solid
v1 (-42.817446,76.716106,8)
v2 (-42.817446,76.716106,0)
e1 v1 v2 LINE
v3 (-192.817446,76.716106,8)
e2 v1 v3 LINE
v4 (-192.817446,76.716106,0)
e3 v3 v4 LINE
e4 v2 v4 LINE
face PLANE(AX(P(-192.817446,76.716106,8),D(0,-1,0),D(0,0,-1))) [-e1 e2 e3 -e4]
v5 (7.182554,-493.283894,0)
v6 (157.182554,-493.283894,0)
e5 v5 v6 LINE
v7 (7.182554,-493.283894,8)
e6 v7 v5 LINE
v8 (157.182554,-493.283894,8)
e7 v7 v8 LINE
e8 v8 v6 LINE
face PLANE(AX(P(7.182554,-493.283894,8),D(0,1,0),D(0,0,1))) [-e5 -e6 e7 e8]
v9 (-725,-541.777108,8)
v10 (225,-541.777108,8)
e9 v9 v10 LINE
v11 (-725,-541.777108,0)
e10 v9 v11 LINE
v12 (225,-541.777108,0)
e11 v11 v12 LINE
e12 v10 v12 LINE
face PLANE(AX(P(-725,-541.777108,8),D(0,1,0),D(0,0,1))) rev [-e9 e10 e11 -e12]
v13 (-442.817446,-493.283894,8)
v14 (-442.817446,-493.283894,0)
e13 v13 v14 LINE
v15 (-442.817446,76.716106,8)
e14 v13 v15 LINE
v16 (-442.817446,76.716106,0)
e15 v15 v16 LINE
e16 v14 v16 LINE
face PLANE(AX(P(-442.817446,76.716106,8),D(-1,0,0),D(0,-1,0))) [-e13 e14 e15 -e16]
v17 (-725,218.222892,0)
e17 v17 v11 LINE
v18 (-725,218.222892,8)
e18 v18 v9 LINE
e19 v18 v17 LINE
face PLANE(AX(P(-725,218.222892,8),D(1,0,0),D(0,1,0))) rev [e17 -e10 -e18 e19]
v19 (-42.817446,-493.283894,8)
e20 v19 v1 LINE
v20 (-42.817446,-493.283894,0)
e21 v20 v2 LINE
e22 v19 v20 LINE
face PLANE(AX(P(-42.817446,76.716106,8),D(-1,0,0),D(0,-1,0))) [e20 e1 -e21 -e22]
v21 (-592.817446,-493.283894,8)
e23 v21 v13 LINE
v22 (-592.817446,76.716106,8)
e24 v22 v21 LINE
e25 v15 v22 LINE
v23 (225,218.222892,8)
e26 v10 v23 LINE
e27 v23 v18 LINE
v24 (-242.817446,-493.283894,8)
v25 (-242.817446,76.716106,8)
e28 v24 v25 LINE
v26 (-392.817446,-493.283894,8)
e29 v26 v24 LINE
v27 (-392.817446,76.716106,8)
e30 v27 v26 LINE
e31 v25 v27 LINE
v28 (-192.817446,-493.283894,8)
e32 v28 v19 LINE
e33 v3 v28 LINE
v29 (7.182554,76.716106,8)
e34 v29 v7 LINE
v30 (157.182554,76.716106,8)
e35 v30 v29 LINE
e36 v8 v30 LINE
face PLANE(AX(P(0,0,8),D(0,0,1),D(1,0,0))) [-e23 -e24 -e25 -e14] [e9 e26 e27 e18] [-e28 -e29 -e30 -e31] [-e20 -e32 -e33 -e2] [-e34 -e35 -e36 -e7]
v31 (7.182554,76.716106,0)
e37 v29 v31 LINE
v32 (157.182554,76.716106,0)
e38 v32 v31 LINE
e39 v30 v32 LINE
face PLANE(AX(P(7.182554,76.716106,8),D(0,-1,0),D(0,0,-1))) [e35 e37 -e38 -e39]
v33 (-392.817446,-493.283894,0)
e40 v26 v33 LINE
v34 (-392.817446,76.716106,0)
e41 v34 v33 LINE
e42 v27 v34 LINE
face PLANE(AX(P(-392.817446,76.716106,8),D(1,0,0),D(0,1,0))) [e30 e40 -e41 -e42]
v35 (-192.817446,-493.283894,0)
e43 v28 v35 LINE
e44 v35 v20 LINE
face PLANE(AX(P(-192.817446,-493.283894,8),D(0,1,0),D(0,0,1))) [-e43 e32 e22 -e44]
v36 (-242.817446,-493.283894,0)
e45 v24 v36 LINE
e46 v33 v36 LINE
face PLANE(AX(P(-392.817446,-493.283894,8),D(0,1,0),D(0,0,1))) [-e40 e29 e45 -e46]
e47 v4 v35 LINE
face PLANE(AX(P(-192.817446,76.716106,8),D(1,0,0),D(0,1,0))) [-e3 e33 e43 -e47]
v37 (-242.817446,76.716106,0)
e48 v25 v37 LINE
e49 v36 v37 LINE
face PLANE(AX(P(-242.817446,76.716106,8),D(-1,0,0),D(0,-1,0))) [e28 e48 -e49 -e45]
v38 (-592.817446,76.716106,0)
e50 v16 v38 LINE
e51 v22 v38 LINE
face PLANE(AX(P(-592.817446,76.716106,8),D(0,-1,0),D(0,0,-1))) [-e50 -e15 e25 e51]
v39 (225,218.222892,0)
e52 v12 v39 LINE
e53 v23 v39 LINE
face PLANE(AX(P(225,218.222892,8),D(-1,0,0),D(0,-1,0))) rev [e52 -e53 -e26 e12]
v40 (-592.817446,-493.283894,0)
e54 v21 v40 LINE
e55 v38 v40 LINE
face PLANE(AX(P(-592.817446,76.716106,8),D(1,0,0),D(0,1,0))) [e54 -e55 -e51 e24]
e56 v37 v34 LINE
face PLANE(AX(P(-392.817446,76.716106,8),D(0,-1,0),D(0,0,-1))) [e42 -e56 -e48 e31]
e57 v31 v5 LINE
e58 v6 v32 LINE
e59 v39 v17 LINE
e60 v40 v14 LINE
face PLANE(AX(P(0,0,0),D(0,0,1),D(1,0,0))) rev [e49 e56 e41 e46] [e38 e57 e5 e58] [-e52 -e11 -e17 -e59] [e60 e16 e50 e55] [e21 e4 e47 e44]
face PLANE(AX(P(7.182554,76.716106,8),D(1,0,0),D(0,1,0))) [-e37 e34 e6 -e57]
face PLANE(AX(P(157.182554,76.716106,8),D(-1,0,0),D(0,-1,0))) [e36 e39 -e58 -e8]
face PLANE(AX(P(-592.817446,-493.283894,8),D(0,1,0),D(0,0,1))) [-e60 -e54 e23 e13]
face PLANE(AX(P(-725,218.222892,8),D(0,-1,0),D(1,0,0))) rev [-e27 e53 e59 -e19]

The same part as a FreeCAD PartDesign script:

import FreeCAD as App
import Part
import Sketcher
from FreeCAD import Vector
Q = App.Units.Quantity

doc = App.newDocument("Part")
body = doc.addObject("PartDesign::Body", "Body")

# Sketch on XY plane
sketch1 = body.newObject("Sketcher::SketchObject", "Sketch")
sketch1.AttachmentSupport = (doc.getObject("XY_Plane"), [""])
sketch1.MapMode = "FlatFace"
sketch1.addGeometry(Part.LineSegment(Vector(-725, 218, 0), Vector(-725, -542, 0)), False)
sketch1.addGeometry(Part.LineSegment(Vector(-725, -542, 0), Vector(225, -542, 0)), False)
sketch1.addGeometry(Part.LineSegment(Vector(225, -542, 0), Vector(225, 218, 0)), False)
sketch1.addGeometry(Part.LineSegment(Vector(225, 218, 0), Vector(-725, 218, 0)), False)
sketch1.addGeometry(Part.LineSegment(Vector(-443, -493, 0), Vector(-593, -493, 0)), False)
sketch1.addGeometry(Part.LineSegment(Vector(-593, -493, 0), Vector(-593, 77, 0)), False)
sketch1.addGeometry(Part.LineSegment(Vector(-593, 77, 0), Vector(-443, 77, 0)), False)
sketch1.addGeometry(Part.LineSegment(Vector(-443, 77, 0), Vector(-443, -493, 0)), False)
sketch1.addGeometry(Part.LineSegment(Vector(-243, -493, 0), Vector(-393, -493, 0)), False)
sketch1.addGeometry(Part.LineSegment(Vector(-393, -493, 0), Vector(-393, 77, 0)), False)
sketch1.addGeometry(Part.LineSegment(Vector(-393, 77, 0), Vector(-243, 77, 0)), False)
sketch1.addGeometry(Part.LineSegment(Vector(-243, 77, 0), Vector(-243, -493, 0)), False)
sketch1.addGeometry(Part.LineSegment(Vector(-43, -493, 0), Vector(-193, -493, 0)), False)
sketch1.addGeometry(Part.LineSegment(Vector(-193, -493, 0), Vector(-193, 77, 0)), False)
sketch1.addGeometry(Part.LineSegment(Vector(-193, 77, 0), Vector(-43, 77, 0)), False)
sketch1.addGeometry(Part.LineSegment(Vector(-43, 77, 0), Vector(-43, -493, 0)), False)
sketch1.addGeometry(Part.LineSegment(Vector(157, -493, 0), Vector(7, -493, 0)), False)
sketch1.addGeometry(Part.LineSegment(Vector(7, -493, 0), Vector(7, 77, 0)), False)
sketch1.addGeometry(Part.LineSegment(Vector(7, 77, 0), Vector(157, 77, 0)), False)
sketch1.addGeometry(Part.LineSegment(Vector(157, 77, 0), Vector(157, -493, 0)), False)
sketch1.addConstraint(Sketcher.Constraint("Coincident", 0, 2, 1, 1))
sketch1.addConstraint(Sketcher.Constraint("Coincident", 1, 2, 2, 1))
sketch1.addConstraint(Sketcher.Constraint("Coincident", 2, 2, 3, 1))
sketch1.addConstraint(Sketcher.Constraint("Coincident", 3, 2, 0, 1))
sketch1.addConstraint(Sketcher.Constraint("Coincident", 4, 2, 5, 1))
sketch1.addConstraint(Sketcher.Constraint("Coincident", 5, 2, 6, 1))
sketch1.addConstraint(Sketcher.Constraint("Coincident", 6, 2, 7, 1))
sketch1.addConstraint(Sketcher.Constraint("Coincident", 7, 2, 4, 1))
sketch1.addConstraint(Sketcher.Constraint("Coincident", 8, 2, 9, 1))
sketch1.addConstraint(Sketcher.Constraint("Coincident", 9, 2, 10, 1))
sketch1.addConstraint(Sketcher.Constraint("Coincident", 10, 2, 11, 1))
sketch1.addConstraint(Sketcher.Constraint("Coincident", 11, 2, 8, 1))
sketch1.addConstraint(Sketcher.Constraint("Coincident", 12, 2, 13, 1))
sketch1.addConstraint(Sketcher.Constraint("Coincident", 13, 2, 14, 1))
sketch1.addConstraint(Sketcher.Constraint("Coincident", 14, 2, 15, 1))
sketch1.addConstraint(Sketcher.Constraint("Coincident", 15, 2, 12, 1))
sketch1.addConstraint(Sketcher.Constraint("Coincident", 16, 2, 17, 1))
sketch1.addConstraint(Sketcher.Constraint("Coincident", 17, 2, 18, 1))
sketch1.addConstraint(Sketcher.Constraint("Coincident", 18, 2, 19, 1))
sketch1.addConstraint(Sketcher.Constraint("Coincident", 19, 2, 16, 1))
sketch1.addConstraint(Sketcher.Constraint("Vertical", 0))
sketch1.addConstraint(Sketcher.Constraint("Horizontal", 1))
sketch1.addConstraint(Sketcher.Constraint("Vertical", 2))
sketch1.addConstraint(Sketcher.Constraint("Horizontal", 3))
sketch1.addConstraint(Sketcher.Constraint("Horizontal", 4))
sketch1.addConstraint(Sketcher.Constraint("Vertical", 5))
sketch1.addConstraint(Sketcher.Constraint("Horizontal", 6))
sketch1.addConstraint(Sketcher.Constraint("Vertical", 7))
sketch1.addConstraint(Sketcher.Constraint("Horizontal", 8))
sketch1.addConstraint(Sketcher.Constraint("Vertical", 9))
sketch1.addConstraint(Sketcher.Constraint("Horizontal", 10))
sketch1.addConstraint(Sketcher.Constraint("Vertical", 11))
sketch1.addConstraint(Sketcher.Constraint("Horizontal", 12))
sketch1.addConstraint(Sketcher.Constraint("Vertical", 13))
sketch1.addConstraint(Sketcher.Constraint("Horizontal", 14))
sketch1.addConstraint(Sketcher.Constraint("Vertical", 15))
sketch1.addConstraint(Sketcher.Constraint("Horizontal", 16))
sketch1.addConstraint(Sketcher.Constraint("Vertical", 17))
sketch1.addConstraint(Sketcher.Constraint("Horizontal", 18))
sketch1.addConstraint(Sketcher.Constraint("Vertical", 19))
sketch1.addConstraint(Sketcher.Constraint("Horizontal", 7, 2, 8, 2))
sketch1.addConstraint(Sketcher.Constraint("Horizontal", 6, 2, 9, 2))
sketch1.addConstraint(Sketcher.Constraint("Horizontal", 11, 2, 12, 2))
sketch1.addConstraint(Sketcher.Constraint("Horizontal", 10, 2, 13, 2))
sketch1.addConstraint(Sketcher.Constraint("Horizontal", 15, 2, 16, 2))
sketch1.addConstraint(Sketcher.Constraint("Horizontal", 14, 2, 17, 2))
sketch1.addConstraint(Sketcher.Constraint("Equal", 6, 8))
sketch1.addConstraint(Sketcher.Constraint("Equal", 10, 12))
sketch1.addConstraint(Sketcher.Constraint("Equal", 14, 16))
sketch1.addConstraint(Sketcher.Constraint("DistanceX", 1, 1, 1, 2, Q("950 mm")))
sketch1.addConstraint(Sketcher.Constraint("DistanceX", 4, 2, 4, 1, Q("150 mm")))
sketch1.addConstraint(Sketcher.Constraint("DistanceY", 0, 2, 0, 1, Q("760 mm")))
sketch1.addConstraint(Sketcher.Constraint("DistanceY", 5, 1, 5, 2, Q("570 mm")))
sketch1.addConstraint(Sketcher.Constraint("DistanceX", 0, 2, -1, 1, Q("725 mm")))
sketch1.addConstraint(Sketcher.Constraint("DistanceX", 7, 2, 8, 2, Q("50 mm")))
sketch1.addConstraint(Sketcher.Constraint("DistanceX", 11, 2, 12, 2, Q("50 mm")))
sketch1.addConstraint(Sketcher.Constraint("DistanceX", 15, 2, 16, 2, Q("50 mm")))
sketch1.addConstraint(Sketcher.Constraint("DistanceY", 0, 2, -1, 1, Q("541.777108 mm")))
sketch1.addConstraint(Sketcher.Constraint("DistanceX", 4, 2, -1, 1, Q("592.817446 mm")))
sketch1.addConstraint(Sketcher.Constraint("DistanceY", 4, 2, -1, 1, Q("493.283894 mm")))
pad1 = body.newObject("PartDesign::Pad", "Pad")
pad1.Profile = sketch1
pad1.Length = 8

doc.recompute()
